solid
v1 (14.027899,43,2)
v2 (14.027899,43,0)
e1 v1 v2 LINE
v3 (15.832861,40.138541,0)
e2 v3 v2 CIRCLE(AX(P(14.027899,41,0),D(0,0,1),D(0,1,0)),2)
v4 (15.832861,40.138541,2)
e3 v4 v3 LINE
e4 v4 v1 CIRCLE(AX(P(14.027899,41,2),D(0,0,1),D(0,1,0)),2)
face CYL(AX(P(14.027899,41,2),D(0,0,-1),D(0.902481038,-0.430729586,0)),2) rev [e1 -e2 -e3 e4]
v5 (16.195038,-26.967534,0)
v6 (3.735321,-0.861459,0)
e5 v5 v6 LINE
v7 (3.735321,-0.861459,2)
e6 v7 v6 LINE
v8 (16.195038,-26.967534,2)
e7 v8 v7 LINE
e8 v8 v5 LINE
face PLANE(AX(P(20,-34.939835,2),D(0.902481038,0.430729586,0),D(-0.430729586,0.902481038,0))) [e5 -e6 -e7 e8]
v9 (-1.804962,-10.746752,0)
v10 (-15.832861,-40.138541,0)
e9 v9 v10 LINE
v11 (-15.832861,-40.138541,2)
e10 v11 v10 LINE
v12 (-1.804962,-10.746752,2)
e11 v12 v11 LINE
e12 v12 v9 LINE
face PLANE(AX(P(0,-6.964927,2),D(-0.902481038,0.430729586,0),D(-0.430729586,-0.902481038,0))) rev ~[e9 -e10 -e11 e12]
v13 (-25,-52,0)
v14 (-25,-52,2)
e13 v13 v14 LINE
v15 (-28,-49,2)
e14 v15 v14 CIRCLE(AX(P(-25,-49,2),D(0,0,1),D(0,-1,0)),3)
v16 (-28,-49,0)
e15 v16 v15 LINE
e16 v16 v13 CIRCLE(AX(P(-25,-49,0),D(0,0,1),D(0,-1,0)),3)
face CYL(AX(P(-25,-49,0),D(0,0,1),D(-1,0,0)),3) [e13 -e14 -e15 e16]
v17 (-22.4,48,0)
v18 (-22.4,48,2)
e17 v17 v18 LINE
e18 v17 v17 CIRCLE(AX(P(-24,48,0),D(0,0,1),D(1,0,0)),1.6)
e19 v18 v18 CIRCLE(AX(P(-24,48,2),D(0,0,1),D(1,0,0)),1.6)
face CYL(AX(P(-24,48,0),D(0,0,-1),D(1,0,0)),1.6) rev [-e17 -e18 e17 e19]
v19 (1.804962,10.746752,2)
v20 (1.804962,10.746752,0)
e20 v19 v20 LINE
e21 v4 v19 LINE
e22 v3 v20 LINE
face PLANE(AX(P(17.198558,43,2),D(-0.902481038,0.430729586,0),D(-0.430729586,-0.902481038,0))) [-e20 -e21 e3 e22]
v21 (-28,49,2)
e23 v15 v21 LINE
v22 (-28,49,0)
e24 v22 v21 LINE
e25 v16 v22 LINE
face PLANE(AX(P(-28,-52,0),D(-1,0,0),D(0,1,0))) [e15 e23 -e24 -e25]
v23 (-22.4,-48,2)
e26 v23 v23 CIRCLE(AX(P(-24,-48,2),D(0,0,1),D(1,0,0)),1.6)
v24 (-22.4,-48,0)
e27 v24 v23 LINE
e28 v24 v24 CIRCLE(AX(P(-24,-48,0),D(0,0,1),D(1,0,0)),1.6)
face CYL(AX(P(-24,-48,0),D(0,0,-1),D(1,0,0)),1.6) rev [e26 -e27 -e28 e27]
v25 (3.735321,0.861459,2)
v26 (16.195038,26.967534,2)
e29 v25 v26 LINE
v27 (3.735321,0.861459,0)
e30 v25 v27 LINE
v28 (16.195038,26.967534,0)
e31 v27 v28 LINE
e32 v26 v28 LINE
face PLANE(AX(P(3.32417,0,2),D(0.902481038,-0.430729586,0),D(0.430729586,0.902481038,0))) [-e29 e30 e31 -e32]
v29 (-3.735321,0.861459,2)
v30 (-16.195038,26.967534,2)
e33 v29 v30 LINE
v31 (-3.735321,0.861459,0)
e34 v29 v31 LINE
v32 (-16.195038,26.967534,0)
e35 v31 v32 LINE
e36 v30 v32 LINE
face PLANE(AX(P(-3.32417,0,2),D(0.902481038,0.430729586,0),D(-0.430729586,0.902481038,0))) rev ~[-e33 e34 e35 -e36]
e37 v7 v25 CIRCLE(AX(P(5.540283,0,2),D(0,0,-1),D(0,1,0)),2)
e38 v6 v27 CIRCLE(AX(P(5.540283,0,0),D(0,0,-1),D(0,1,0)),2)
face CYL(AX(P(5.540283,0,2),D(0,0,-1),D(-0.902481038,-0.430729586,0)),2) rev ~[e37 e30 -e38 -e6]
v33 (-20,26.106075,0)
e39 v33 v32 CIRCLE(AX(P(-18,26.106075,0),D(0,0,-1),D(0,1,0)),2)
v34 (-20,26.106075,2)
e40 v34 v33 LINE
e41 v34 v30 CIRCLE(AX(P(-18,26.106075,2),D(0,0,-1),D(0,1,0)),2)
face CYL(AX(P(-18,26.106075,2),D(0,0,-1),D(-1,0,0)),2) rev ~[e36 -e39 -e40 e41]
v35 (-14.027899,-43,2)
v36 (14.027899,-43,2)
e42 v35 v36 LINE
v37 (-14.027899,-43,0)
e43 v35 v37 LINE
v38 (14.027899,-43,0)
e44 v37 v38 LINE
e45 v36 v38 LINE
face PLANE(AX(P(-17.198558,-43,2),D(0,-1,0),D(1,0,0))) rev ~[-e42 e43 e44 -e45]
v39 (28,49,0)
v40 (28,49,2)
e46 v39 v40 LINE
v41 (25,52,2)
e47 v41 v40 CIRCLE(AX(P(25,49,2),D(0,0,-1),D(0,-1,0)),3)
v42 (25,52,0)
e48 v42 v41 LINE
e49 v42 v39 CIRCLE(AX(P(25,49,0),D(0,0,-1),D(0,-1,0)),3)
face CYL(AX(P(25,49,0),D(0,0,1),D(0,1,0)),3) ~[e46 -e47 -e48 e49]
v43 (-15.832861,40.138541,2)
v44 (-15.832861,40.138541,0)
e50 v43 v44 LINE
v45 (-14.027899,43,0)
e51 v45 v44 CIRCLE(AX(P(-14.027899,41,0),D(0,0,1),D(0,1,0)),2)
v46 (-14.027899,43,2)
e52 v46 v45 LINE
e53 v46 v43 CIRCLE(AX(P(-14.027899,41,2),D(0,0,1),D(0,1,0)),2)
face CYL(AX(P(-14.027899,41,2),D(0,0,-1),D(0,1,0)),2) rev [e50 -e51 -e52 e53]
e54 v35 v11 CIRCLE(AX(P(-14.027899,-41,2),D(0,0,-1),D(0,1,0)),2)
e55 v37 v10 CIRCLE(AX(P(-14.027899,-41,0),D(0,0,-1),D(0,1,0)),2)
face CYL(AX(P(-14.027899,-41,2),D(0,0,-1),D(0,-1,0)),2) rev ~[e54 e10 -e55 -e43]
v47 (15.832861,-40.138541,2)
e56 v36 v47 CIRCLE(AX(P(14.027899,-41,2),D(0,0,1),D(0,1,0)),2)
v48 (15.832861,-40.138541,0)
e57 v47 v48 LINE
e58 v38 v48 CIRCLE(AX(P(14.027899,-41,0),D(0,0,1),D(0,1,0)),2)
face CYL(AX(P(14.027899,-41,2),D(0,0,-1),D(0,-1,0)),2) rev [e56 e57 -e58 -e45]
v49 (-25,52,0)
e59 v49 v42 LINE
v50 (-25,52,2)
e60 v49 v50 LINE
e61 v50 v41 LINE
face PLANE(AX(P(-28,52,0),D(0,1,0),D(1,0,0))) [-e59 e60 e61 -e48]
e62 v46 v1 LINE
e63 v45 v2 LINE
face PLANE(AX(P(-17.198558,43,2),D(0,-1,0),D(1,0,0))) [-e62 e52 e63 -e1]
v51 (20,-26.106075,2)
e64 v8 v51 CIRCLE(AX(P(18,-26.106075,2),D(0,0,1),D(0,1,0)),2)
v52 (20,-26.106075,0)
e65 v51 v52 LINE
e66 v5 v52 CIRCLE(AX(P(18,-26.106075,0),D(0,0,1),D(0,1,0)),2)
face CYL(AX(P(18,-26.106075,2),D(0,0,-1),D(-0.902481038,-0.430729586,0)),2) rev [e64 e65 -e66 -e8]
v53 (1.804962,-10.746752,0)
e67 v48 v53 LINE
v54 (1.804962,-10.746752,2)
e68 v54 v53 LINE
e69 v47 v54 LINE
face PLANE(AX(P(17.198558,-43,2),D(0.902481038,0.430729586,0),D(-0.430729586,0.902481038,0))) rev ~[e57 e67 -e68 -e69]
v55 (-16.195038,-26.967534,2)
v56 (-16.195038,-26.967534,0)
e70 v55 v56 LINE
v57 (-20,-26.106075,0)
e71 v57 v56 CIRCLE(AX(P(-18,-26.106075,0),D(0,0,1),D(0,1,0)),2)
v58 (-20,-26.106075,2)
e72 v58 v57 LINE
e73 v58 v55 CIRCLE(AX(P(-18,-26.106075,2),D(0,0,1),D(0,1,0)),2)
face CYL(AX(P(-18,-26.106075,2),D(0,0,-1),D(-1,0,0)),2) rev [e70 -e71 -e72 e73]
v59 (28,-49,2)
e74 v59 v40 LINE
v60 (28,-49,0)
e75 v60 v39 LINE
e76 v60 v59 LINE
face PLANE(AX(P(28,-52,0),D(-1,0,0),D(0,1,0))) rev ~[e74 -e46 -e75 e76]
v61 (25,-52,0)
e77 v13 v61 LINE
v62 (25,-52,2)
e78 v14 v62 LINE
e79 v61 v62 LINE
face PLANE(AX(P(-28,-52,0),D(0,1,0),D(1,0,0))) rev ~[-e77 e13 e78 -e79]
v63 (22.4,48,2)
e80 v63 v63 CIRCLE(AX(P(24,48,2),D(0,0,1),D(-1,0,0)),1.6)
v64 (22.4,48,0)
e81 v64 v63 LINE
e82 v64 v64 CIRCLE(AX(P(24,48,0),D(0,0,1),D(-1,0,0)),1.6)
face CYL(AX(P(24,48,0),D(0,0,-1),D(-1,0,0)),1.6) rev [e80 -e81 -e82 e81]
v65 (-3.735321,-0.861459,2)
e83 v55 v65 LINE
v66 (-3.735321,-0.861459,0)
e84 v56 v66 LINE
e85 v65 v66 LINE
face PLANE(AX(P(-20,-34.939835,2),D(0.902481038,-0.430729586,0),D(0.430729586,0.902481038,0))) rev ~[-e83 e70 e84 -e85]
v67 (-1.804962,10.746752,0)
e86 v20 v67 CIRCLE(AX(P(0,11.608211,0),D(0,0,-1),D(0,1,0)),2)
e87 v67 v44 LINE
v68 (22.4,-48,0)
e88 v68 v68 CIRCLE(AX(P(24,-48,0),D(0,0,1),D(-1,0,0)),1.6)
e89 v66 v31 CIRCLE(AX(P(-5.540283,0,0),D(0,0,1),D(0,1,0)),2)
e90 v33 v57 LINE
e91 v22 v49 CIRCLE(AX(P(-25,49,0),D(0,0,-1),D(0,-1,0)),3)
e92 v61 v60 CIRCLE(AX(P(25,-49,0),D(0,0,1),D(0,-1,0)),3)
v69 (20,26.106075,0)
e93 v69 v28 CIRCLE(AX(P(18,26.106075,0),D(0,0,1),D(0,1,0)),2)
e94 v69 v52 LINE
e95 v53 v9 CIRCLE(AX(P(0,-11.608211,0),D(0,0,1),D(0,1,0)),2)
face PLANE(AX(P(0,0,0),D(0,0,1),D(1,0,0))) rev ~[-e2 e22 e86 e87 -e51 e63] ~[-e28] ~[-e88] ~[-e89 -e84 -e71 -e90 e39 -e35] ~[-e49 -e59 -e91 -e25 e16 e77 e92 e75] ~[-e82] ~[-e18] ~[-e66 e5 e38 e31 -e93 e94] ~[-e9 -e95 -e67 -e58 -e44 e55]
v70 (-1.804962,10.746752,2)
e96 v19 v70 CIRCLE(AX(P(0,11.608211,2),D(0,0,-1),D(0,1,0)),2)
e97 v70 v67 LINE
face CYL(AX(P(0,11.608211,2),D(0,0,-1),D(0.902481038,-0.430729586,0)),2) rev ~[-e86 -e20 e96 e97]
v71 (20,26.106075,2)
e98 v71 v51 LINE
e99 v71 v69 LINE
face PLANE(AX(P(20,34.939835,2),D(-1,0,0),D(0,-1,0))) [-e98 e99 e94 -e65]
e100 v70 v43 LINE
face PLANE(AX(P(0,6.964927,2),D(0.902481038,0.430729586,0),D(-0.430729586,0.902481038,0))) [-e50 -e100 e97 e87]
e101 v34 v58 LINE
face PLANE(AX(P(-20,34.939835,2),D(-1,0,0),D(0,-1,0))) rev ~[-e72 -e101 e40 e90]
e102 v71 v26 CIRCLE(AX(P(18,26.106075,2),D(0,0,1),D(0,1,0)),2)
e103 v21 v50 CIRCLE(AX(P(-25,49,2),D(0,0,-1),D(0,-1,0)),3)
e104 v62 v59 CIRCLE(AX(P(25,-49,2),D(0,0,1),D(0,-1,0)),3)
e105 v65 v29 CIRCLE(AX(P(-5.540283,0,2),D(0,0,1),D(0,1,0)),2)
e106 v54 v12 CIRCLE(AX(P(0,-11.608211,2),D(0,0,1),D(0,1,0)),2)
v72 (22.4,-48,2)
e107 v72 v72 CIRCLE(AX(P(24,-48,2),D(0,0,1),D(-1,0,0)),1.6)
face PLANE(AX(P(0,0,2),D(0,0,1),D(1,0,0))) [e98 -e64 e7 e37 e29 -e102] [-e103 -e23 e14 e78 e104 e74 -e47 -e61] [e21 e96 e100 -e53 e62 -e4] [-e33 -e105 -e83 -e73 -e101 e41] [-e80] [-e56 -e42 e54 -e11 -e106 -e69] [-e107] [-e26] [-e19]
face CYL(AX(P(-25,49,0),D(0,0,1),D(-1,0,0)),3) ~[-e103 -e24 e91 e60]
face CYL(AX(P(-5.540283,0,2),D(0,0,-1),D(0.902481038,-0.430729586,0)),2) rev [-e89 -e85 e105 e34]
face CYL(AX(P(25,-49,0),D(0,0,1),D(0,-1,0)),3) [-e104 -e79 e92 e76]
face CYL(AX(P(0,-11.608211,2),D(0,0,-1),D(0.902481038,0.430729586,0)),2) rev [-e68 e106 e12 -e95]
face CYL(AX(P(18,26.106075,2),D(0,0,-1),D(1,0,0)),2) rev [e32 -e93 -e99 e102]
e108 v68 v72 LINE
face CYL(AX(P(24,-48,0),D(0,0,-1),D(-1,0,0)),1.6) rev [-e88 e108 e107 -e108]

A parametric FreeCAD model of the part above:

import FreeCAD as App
import Part
import Sketcher

V = App.Vector


def edges_at(feature, points):
    """Names of the edges that pass closest to the given points."""
    edges = feature.Shape.Edges
    near = lambda p: min(range(len(edges)), key=lambda i: edges[i].distToShape(Part.Vertex(*p))[0])
    return sorted({f"Edge{near(p) + 1}" for p in points})

doc = App.newDocument("Part")
body = doc.addObject("PartDesign::Body", "Body")

# Sketch on XY plane
sketch1 = body.newObject("Sketcher::SketchObject", "Sketch")
sketch1.AttachmentSupport = (doc.getObject("XY_Plane"), [""])
sketch1.MapMode = "FlatFace"
sketch1.addGeometry([
    Part.LineSegment(V(-28, 52, 0), V(-28, -52, 0)),  # 0
    Part.LineSegment(V(-28, -52, 0), V(28, -52, 0)),  # 1
    Part.LineSegment(V(28, -52, 0), V(28, 52, 0)),  # 2
    Part.LineSegment(V(28, 52, 0), V(-28, 52, 0)),  # 3
    Part.Circle(V(-24, -48, 0), V(0, 0, 1), 1.6),  # 4
    Part.Circle(V(24, -48, 0), V(0, 0, 1), 1.6),  # 5
    Part.Circle(V(-24, 48, 0), V(0, 0, 1), 1.6),  # 6
    Part.Circle(V(24, 48, 0), V(0, 0, 1), 1.6),  # 7
], False)
sketch1.addConstraint([
    Sketcher.Constraint("Coincident", 0, 2, 1, 1),
    Sketcher.Constraint("Coincident", 1, 2, 2, 1),
    Sketcher.Constraint("Coincident", 2, 2, 3, 1),
    Sketcher.Constraint("Coincident", 3, 2, 0, 1),
    Sketcher.Constraint("Vertical", 0),
    Sketcher.Constraint("Horizontal", 1),
    Sketcher.Constraint("Vertical", 2),
    Sketcher.Constraint("Horizontal", 3),
    Sketcher.Constraint("Equal", 4, 5),
    Sketcher.Constraint("Equal", 5, 6),
    Sketcher.Constraint("Equal", 6, 7),
    Sketcher.Constraint("Symmetric", 5, 3, 6, 3, -1, 1),
    Sketcher.Constraint("Symmetric", 4, 3, 7, 3, -1, 1),
    Sketcher.Constraint("Symmetric", 0, 2, 2, 2, -1, 1),
    Sketcher.Constraint("Symmetric", 4, 3, 5, 3, -2),
    Sketcher.Constraint("Diameter", 4, 3.2),
    Sketcher.Constraint("DistanceX", 1, 1, 1, 2, 56.0),
    Sketcher.Constraint("DistanceY", 0, 2, 0, 1, 104.0),
    Sketcher.Constraint("DistanceX", 4, 3, -1, 1, 24.0),
    Sketcher.Constraint("DistanceY", 4, 3, -1, 1, 48.0),
])
pad1 = body.newObject("PartDesign::Pad", "Pad")
pad1.Profile = sketch1
pad1.Length = 2
doc.recompute()

fillet = body.newObject("PartDesign::Fillet", "Fillet")
fillet.Base = (pad1, edges_at(pad1, [
    (28, -52, 1),
    (-28, -52, 1),
    (-28, 52, 1),
    (28, 52, 1),
]))
fillet.Radius = 3

# Sketch on XY plane
sketch2 = body.newObject("Sketcher::SketchObject", "Sketch001")
sketch2.AttachmentSupport = (doc.getObject("XY_Plane"), [""])
sketch2.MapMode = "FlatFace"
sketch2.AttachmentOffset = App.Placement(V(0, 0, 2), App.Rotation())
sketch2.addGeometry([
    Part.LineSegment(V(-20, 34.939835, 0), V(-20, -34.939835, 0)),  # 0
    Part.LineSegment(V(-20, -34.939835, 0), V(-3.32417, 0, 0)),  # 1
    Part.LineSegment(V(-3.32417, 0, 0), V(-20, 34.939835, 0)),  # 2
    Part.LineSegment(V(-17.198558, -43, 0), V(17.198558, -43, 0)),  # 3
    Part.LineSegment(V(17.198558, -43, 0), V(0, -6.964927, 0)),  # 4
    Part.LineSegment(V(0, -6.964927, 0), V(-17.198558, -43, 0)),  # 5
    Part.LineSegment(V(-17.198558, 43, 0), V(0, 6.964927, 0)),  # 6
    Part.LineSegment(V(0, 6.964927, 0), V(17.198558, 43, 0)),  # 7
    Part.LineSegment(V(17.198558, 43, 0), V(-17.198558, 43, 0)),  # 8
    Part.LineSegment(V(20, 34.939835, 0), V(3.32417, 0, 0)),  # 9
    Part.LineSegment(V(3.32417, 0, 0), V(20, -34.939835, 0)),  # 10
    Part.LineSegment(V(20, -34.939835, 0), V(20, 34.939835, 0)),  # 11
], False)
sketch2.addConstraint([
    Sketcher.Constraint("Coincident", 0, 2, 1, 1),
    Sketcher.Constraint("Coincident", 1, 2, 2, 1),
    Sketcher.Constraint("Coincident", 2, 2, 0, 1),
    Sketcher.Constraint("Coincident", 3, 2, 4, 1),
    Sketcher.Constraint("Coincident", 4, 2, 5, 1),
    Sketcher.Constraint("Coincident", 5, 2, 3, 1),
    Sketcher.Constraint("Coincident", 6, 2, 7, 1),
    Sketcher.Constraint("Coincident", 7, 2, 8, 1),
    Sketcher.Constraint("Coincident", 8, 2, 6, 1),
    Sketcher.Constraint("Coincident", 9, 2, 10, 1),
    Sketcher.Constraint("Coincident", 10, 2, 11, 1),
    Sketcher.Constraint("Coincident", 11, 2, 9, 1),
    Sketcher.Constraint("Vertical", 0),
    Sketcher.Constraint("Horizontal", 3),
    Sketcher.Constraint("Horizontal", 8),
    Sketcher.Constraint("Vertical", 11),
    Sketcher.Constraint("Symmetric", 4, 2, 6, 2, -1, 1),
    Sketcher.Constraint("Symmetric", 5, 2, 7, 2, -1, 1),
    Sketcher.Constraint("Symmetric", 1, 2, 9, 2, -1, 1),
    Sketcher.Constraint("Symmetric", 2, 2, 10, 2, -1, 1),
    Sketcher.Constraint("PointOnObject", 1, 2, -1),
    Sketcher.Constraint("PointOnObject", 4, 2, -2),
    Sketcher.Constraint("Parallel", 2, 4),
    Sketcher.Constraint("Parallel", 1, 5),
    Sketcher.Constraint("Parallel", 4, 6),
    Sketcher.Constraint("Parallel", 7, 9),
    Sketcher.Constraint("Horizontal", 0, 2, 10, 2),
    Sketcher.Constraint("DistanceX", 0, 2, -1, 1, 20.0),
    Sketcher.Constraint("DistanceY", 3, 2, -1, 1, 43.0),
    Sketcher.Constraint("DistanceY", 0, 2, 0, 1, 69.87967),
    Sketcher.Constraint("DistanceX", 3, 1, 3, 2, 34.397115),
    Sketcher.Constraint("DistanceX", 1, 2, -1, 1, 3.32417),
])
pocket1 = body.newObject("PartDesign::Pocket", "Pocket")
pocket1.Profile = sketch2
pocket1.Length = 10
doc.recompute()

fillet2 = body.newObject("PartDesign::Fillet", "Fillet001")
fillet2.Base = (pocket1, edges_at(pocket1, [
    (-3.324, 0, 1),
    (-20, -34.94, 1),
    (-20, 34.94, 1),
    (-17.199, -43, 1),
    (0, -6.965, 1),
    (17.199, -43, 1),
    (17.199, 43, 1),
    (0, 6.965, 1),
    (-17.199, 43, 1),
    (20, -34.94, 1),
    (3.324, 0, 1),
    (20, 34.94, 1),
]))
fillet2.Radius = 2

doc.recompute()
